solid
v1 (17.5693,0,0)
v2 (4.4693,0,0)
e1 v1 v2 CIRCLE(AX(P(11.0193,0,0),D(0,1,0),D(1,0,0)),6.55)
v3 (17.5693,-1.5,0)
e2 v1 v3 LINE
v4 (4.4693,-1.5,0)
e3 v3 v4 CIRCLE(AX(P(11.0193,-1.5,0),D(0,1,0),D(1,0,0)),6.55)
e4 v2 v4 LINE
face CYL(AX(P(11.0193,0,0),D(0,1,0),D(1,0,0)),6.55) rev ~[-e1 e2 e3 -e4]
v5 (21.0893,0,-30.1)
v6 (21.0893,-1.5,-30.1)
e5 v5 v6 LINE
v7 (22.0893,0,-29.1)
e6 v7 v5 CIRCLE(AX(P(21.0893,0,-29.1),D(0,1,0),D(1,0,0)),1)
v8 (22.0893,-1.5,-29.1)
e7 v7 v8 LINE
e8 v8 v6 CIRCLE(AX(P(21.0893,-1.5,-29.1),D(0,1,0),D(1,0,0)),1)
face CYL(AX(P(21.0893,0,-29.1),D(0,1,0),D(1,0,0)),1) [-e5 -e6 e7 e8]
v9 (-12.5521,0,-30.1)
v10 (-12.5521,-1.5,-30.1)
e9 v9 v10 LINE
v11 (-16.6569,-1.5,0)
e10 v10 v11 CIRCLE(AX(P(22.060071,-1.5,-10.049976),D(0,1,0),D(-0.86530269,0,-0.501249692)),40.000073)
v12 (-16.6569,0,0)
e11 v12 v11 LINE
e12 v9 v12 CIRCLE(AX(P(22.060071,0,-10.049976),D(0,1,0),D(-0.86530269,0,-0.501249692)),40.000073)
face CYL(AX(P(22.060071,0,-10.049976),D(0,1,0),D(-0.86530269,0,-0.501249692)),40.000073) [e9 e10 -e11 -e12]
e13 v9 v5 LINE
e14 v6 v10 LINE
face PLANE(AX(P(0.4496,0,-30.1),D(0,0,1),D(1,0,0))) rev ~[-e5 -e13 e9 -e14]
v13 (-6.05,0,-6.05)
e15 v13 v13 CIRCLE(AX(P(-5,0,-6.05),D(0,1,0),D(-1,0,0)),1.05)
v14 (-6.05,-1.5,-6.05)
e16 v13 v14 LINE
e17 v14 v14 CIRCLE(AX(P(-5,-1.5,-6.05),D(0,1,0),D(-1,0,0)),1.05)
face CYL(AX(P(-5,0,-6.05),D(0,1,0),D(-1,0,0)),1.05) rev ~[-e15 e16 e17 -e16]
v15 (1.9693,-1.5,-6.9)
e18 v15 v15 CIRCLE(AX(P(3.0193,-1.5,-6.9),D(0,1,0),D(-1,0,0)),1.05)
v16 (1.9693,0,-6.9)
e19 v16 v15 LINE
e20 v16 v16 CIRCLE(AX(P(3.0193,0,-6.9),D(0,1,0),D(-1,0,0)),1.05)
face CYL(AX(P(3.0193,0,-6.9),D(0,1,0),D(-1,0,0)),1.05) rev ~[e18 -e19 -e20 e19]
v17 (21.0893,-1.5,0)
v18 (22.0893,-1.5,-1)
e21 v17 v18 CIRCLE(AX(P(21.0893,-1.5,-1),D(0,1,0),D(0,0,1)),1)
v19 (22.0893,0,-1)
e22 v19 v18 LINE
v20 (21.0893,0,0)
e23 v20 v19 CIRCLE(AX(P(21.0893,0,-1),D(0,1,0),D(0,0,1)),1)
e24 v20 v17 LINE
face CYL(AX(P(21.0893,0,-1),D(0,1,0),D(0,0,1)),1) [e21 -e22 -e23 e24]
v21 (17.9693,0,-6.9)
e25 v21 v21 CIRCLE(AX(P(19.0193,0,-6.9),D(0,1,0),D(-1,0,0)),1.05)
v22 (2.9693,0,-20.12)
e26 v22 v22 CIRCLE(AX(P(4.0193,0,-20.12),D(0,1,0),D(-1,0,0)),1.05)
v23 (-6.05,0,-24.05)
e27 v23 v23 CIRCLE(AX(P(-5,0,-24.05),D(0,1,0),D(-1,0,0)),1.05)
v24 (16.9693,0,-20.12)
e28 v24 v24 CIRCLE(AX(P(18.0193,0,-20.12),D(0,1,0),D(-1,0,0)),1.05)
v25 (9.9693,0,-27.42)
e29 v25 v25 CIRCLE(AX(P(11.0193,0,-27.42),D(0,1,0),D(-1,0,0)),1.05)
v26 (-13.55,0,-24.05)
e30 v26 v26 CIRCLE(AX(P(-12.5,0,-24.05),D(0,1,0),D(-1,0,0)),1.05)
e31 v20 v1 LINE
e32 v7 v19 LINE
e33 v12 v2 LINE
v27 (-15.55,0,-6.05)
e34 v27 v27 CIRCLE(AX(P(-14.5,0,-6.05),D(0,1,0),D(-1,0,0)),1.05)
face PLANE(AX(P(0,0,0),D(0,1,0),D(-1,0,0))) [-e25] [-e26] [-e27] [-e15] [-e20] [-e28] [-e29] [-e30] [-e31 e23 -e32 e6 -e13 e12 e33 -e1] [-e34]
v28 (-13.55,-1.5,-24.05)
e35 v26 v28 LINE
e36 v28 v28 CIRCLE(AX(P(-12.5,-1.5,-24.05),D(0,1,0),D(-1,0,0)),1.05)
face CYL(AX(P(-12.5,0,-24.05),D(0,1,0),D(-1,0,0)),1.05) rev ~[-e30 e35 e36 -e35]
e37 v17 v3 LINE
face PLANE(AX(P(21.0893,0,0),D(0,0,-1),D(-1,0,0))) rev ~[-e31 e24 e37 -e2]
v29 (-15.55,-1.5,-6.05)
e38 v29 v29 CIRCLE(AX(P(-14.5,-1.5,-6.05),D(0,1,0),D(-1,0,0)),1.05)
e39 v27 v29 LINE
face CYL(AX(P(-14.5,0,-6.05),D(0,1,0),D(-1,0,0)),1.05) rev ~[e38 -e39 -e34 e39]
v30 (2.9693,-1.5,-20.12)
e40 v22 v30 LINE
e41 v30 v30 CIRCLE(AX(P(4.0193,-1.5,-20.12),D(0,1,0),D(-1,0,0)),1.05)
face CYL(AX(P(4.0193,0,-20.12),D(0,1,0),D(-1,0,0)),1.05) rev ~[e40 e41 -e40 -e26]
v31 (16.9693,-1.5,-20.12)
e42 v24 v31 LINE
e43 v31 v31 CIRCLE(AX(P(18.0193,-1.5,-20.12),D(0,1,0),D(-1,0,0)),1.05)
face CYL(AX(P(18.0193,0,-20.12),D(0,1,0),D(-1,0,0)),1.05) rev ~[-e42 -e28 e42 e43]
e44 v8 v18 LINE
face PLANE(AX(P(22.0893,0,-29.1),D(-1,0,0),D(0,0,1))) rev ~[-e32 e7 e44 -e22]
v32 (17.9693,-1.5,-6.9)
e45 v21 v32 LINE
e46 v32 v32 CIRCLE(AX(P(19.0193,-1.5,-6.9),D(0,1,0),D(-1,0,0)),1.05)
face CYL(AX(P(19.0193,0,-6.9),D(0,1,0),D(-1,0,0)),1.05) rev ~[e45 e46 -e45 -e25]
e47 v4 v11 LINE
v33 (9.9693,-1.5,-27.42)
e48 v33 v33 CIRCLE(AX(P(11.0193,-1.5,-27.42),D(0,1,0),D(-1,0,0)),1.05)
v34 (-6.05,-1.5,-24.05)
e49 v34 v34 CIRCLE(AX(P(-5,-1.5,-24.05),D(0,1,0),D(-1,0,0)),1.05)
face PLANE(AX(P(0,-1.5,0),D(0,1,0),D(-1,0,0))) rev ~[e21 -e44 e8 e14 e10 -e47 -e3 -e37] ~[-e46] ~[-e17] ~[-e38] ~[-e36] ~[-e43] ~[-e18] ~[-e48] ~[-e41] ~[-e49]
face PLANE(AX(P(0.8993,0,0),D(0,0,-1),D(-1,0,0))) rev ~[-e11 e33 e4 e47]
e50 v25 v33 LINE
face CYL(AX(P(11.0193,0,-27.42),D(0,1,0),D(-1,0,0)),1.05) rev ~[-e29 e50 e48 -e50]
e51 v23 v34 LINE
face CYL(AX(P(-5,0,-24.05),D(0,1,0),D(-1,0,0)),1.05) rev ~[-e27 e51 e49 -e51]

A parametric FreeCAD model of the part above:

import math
import FreeCAD as App
import Part
import Sketcher
Q = App.Units.Quantity

doc = App.newDocument("Part")
params = doc.addObject("Spreadsheet::Sheet", "Params")
for row, (alias, value) in enumerate([
    ("sketch1_radius", "40 mm"),
    ("sketch1_radius2", "1 mm"),
    ("sketch1_diameter", "2.1 mm"),
    ("sketch1_radius3", "6.55 mm"),
    ("sketch1_height", "28.1 mm"),
    ("pad1_length", "1.5 mm"),
], start=1):
    params.set(f"A{row}", alias)
    params.set(f"B{row}", "=" + value)
    params.setAlias(f"B{row}", alias)

body = doc.addObject("PartDesign::Body", "Body")

# Sketch on XZ plane
sketch1 = body.newObject("Sketcher::SketchObject", "Sketch")
sketch1.AttachmentSupport = (doc.getObject("XZ_Plane"), [""])
sketch1.MapMode = "FlatFace"
sketch1.addGeometry(Part.ArcOfCircle(Part.Circle(App.Vector(22.1, -10.1, 0), App.Vector(0, 0, 1), 40), math.radians(165), math.radians(210)), False)
sketch1.addGeometry(Part.LineSegment(App.Vector(-16.7, 0, 0), App.Vector(4.5, 0, 0)), False)
sketch1.addGeometry(Part.ArcOfCircle(Part.Circle(App.Vector(11, 0, 0), App.Vector(0, 0, 1), 6.5), math.radians(180), math.radians(360)), False)
sketch1.addGeometry(Part.LineSegment(App.Vector(17.6, 0, 0), App.Vector(21.1, 0, 0)), False)
sketch1.addGeometry(Part.ArcOfCircle(Part.Circle(App.Vector(21.1, -1, 0), App.Vector(0, 0, 1), 1), math.radians(0), math.radians(90)), False)
sketch1.addGeometry(Part.LineSegment(App.Vector(22.1, -1, 0), App.Vector(22.1, -29.1, 0)), False)
sketch1.addGeometry(Part.ArcOfCircle(Part.Circle(App.Vector(21.1, -29.1, 0), App.Vector(0, 0, 1), 1), math.radians(-90), math.radians(0)), False)
sketch1.addGeometry(Part.LineSegment(App.Vector(21.1, -30.1, 0), App.Vector(-12.6, -30.1, 0)), False)
sketch1.addGeometry(Part.Circle(App.Vector(3, -6.9, 0), App.Vector(0, 0, 1), 1.1), False)
sketch1.addGeometry(Part.Circle(App.Vector(11, -27.4, 0), App.Vector(0, 0, 1), 1.1), False)
sketch1.addGeometry(Part.Circle(App.Vector(18, -20.1, 0), App.Vector(0, 0, 1), 1.1), False)
sketch1.addGeometry(Part.Circle(App.Vector(4, -20.1, 0), App.Vector(0, 0, 1), 1.1), False)
sketch1.addGeometry(Part.Circle(App.Vector(19, -6.9, 0), App.Vector(0, 0, 1), 1.1), False)
sketch1.addGeometry(Part.Circle(App.Vector(-14.5, -6, 0), App.Vector(0, 0, 1), 1.1), False)
sketch1.addGeometry(Part.Circle(App.Vector(-5, -24.1, 0), App.Vector(0, 0, 1), 1.1), False)
sketch1.addGeometry(Part.Circle(App.Vector(-12.5, -24.1, 0), App.Vector(0, 0, 1), 1.1), False)
sketch1.addGeometry(Part.Circle(App.Vector(-5, -6, 0), App.Vector(0, 0, 1), 1.1), False)
sketch1.addConstraint(Sketcher.Constraint("Coincident", 0, 1, 1, 1))
sketch1.addConstraint(Sketcher.Constraint("Coincident", 1, 2, 2, 1))
sketch1.addConstraint(Sketcher.Constraint("Coincident", 2, 2, 3, 1))
sketch1.addConstraint(Sketcher.Constraint("Tangent", 3, 2, 4, 2))
sketch1.addConstraint(Sketcher.Constraint("Tangent", 4, 1, 5, 1))
sketch1.addConstraint(Sketcher.Constraint("Tangent", 5, 2, 6, 2))
sketch1.addConstraint(Sketcher.Constraint("Tangent", 6, 1, 7, 1))
sketch1.addConstraint(Sketcher.Constraint("Coincident", 7, 2, 0, 2))
sketch1.addConstraint(Sketcher.Constraint("Horizontal", 1))
sketch1.addConstraint(Sketcher.Constraint("Horizontal", 3))
sketch1.addConstraint(Sketcher.Constraint("Vertical", 5))
sketch1.addConstraint(Sketcher.Constraint("Horizontal", 7))
sketch1.addConstraint(Sketcher.Constraint("Equal", 4, 6))
sketch1.addConstraint(Sketcher.Constraint("Equal", 8, 9))
sketch1.addConstraint(Sketcher.Constraint("Equal", 9, 10))
sketch1.addConstraint(Sketcher.Constraint("Equal", 10, 11))
sketch1.addConstraint(Sketcher.Constraint("Equal", 11, 12))
sketch1.addConstraint(Sketcher.Constraint("Equal", 12, 13))
sketch1.addConstraint(Sketcher.Constraint("Equal", 13, 14))
sketch1.addConstraint(Sketcher.Constraint("Equal", 14, 15))
sketch1.addConstraint(Sketcher.Constraint("Equal", 15, 16))
sketch1.addConstraint(Sketcher.Constraint("PointOnObject", 2, 3, -1))
sketch1.addConstraint(Sketcher.Constraint("PointOnObject", 0, 1, -1))
sketch1.addConstraint(Sketcher.Constraint("PointOnObject", 2, 2, -1))
sketch1.addConstraint(Sketcher.Constraint("Horizontal", 10, 3, 11, 3))
sketch1.addConstraint(Sketcher.Constraint("Horizontal", 8, 3, 12, 3))
sketch1.addConstraint(Sketcher.Constraint("Horizontal", 14, 3, 15, 3))
sketch1.addConstraint(Sketcher.Constraint("Horizontal", 13, 3, 16, 3))
sketch1.addConstraint(Sketcher.Constraint("Vertical", 2, 3, 9, 3))
sketch1.addConstraint(Sketcher.Constraint("Vertical", 14, 3, 16, 3))
sketch1.addConstraint(Sketcher.Constraint("Radius", 0, Q("40 mm")))
sketch1.addConstraint(Sketcher.Constraint("Radius", 4, Q("1 mm")))
sketch1.addConstraint(Sketcher.Constraint("Diameter", 8, Q("2.1 mm")))
sketch1.addConstraint(Sketcher.Constraint("Radius", 2, Q("6.55 mm")))
sketch1.addConstraint(Sketcher.Constraint("DistanceY", 5, 2, 5, 1, Q("28.1 mm")))
sketch1.addConstraint(Sketcher.Constraint("DistanceX", 14, 3, -1, 1, Q("5 mm")))
sketch1.addConstraint(Sketcher.Constraint("DistanceX", 8, 3, 2, 3, Q("8 mm")))
sketch1.addConstraint(Sketcher.Constraint("DistanceX", 9, 3, 10, 3, Q("7 mm")))
sketch1.addConstraint(Sketcher.Constraint("DistanceX", 11, 3, 9, 3, Q("7 mm")))
sketch1.addConstraint(Sketcher.Constraint("DistanceX", 2, 3, 12, 3, Q("8 mm")))
sketch1.addConstraint(Sketcher.Constraint("DistanceY", 14, 3, 13, 3, Q("18 mm")))
sketch1.addConstraint(Sketcher.Constraint("DistanceX", 13, 3, 15, 3, Q("2 mm")))
sketch1.addConstraint(Sketcher.Constraint("DistanceX", 3, 1, 3, 2, Q("3.52 mm")))
sketch1.addConstraint(Sketcher.Constraint("DistanceY", 8, 3, -1, 1, Q("6.9 mm")))
sketch1.addConstraint(Sketcher.Constraint("DistanceX", 13, 3, -1, 1, Q("14.5 mm")))
sketch1.addConstraint(Sketcher.Constraint("DistanceY", 9, 3, 10, 3, Q("7.3 mm")))
sketch1.addConstraint(Sketcher.Constraint("DistanceX", -1, 1, 0, 3, Q("22.06 mm")))
sketch1.addConstraint(Sketcher.Constraint("DistanceY", 0, 3, -1, 1, Q("10.05 mm")))
sketch1.addConstraint(Sketcher.Constraint("DistanceY", 9, 3, -1, 1, Q("27.42 mm")))
sketch1.addConstraint(Sketcher.Constraint("DistanceY", 13, 3, -1, 1, Q("6.05 mm")))
sketch1.addConstraint(Sketcher.Constraint("DistanceX", 1, 1, 1, 2, Q("21.1262 mm")))
sketch1.setExpression("Constraints[30]", "Params.sketch1_radius")
sketch1.setExpression("Constraints[31]", "Params.sketch1_radius2")
sketch1.setExpression("Constraints[32]", "Params.sketch1_diameter")
sketch1.setExpression("Constraints[33]", "Params.sketch1_radius3")
sketch1.setExpression("Constraints[34]", "Params.sketch1_height")
pad1 = body.newObject("PartDesign::Pad", "Pad")
pad1.Profile = sketch1
pad1.setExpression("Length", "Params.pad1_length")

doc.recompute()
